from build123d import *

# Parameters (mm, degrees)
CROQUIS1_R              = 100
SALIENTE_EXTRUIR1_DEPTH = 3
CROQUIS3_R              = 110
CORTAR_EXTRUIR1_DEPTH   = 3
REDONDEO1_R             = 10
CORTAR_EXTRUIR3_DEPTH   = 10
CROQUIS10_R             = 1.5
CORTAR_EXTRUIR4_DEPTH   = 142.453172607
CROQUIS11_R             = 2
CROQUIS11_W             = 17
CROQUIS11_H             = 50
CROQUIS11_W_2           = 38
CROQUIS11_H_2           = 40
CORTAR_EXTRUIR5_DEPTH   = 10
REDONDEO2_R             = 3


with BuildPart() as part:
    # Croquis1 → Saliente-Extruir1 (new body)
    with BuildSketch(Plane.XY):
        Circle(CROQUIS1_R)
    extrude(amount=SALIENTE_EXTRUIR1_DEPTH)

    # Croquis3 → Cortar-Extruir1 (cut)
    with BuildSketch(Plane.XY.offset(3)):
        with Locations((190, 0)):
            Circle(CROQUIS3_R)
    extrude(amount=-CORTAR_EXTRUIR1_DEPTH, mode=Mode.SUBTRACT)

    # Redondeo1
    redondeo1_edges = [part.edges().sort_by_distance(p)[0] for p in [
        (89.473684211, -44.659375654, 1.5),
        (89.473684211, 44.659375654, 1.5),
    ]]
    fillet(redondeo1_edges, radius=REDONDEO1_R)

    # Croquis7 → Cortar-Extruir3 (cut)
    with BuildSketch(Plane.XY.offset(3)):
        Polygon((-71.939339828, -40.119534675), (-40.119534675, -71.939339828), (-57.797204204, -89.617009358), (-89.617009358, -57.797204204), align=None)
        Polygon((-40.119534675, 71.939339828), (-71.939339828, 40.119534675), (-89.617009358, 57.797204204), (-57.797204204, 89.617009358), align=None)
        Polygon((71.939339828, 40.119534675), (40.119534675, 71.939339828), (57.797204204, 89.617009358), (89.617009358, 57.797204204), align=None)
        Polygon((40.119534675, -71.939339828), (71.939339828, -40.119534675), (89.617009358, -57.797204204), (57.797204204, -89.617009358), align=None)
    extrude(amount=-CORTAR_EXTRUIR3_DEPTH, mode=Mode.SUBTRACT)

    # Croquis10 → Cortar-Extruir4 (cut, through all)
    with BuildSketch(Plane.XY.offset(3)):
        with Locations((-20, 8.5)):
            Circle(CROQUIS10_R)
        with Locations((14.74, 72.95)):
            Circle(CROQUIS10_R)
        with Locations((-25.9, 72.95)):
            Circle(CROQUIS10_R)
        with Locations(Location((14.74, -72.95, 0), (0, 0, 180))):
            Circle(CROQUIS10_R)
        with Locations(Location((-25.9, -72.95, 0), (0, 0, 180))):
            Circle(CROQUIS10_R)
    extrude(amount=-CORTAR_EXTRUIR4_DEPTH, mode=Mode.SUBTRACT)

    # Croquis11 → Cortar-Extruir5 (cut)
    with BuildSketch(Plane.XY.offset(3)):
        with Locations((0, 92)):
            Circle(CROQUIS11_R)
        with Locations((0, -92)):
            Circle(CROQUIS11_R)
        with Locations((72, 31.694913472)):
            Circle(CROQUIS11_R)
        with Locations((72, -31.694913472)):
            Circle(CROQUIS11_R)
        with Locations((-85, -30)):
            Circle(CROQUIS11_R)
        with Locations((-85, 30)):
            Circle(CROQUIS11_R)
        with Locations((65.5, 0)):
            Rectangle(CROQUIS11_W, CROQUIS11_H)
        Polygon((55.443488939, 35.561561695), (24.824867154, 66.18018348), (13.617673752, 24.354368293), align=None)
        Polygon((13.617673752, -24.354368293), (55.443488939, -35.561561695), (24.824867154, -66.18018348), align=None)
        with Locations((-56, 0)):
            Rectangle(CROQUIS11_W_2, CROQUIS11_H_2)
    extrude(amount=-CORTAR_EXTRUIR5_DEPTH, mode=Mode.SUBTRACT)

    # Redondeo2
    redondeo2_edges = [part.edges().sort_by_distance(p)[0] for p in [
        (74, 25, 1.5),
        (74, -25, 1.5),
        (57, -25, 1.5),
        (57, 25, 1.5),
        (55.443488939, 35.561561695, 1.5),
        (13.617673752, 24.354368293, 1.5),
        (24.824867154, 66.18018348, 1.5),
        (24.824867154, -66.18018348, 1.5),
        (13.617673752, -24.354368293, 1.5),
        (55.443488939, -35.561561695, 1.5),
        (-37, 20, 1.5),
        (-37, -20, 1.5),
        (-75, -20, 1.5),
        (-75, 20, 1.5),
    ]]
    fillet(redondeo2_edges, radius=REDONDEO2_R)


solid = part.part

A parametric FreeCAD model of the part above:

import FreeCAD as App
import Part
import Sketcher
Q = App.Units.Quantity


def edges_at(feature, points):
    """Names of the edges that pass closest to the given points."""
    edges = feature.Shape.Edges
    near = lambda p: min(range(len(edges)), key=lambda i: edges[i].distToShape(Part.Vertex(*p))[0])
    return sorted({f"Edge{near(p) + 1}" for p in points})

doc = App.newDocument("Part")
body = doc.addObject("PartDesign::Body", "Body")

sketch1 = doc.addObject("Sketcher::SketchObject", "Sketch")
body.addObject(sketch1)
sketch1.AttachmentSupport = (doc.XY_Plane, [""])
sketch1.MapMode = "FlatFace"
sketch1.addGeometry(Part.Circle(App.Vector(0, 0, 0), App.Vector(0, 0, 1), 100), False)
sketch1.addConstraint([
    Sketcher.Constraint("Coincident", 0, 3, -1, 1),
    Sketcher.Constraint("Diameter", 0, Q("200 mm")),
])
pad1 = doc.addObject("PartDesign::Pad", "Pad")
body.addObject(pad1)
pad1.Profile = sketch1
pad1.Length = 3

sketch2 = doc.addObject("Sketcher::SketchObject", "Sketch001")
body.addObject(sketch2)
sketch2.AttachmentSupport = (doc.XY_Plane, [""])
sketch2.MapMode = "FlatFace"
sketch2.AttachmentOffset = App.Placement(App.Vector(0, 0, 3), App.Rotation())
sketch2.addGeometry(Part.Circle(App.Vector(190, 0, 0), App.Vector(0, 0, 1), 110), False)
sketch2.addConstraint([
    Sketcher.Constraint("PointOnObject", 0, 3, -1),
    Sketcher.Constraint("Diameter", 0, Q("220 mm")),
    Sketcher.Constraint("DistanceX", -1, 1, 0, 3, Q("190 mm")),
])
pocket1 = doc.addObject("PartDesign::Pocket", "Pocket")
body.addObject(pocket1)
pocket1.Profile = sketch2
pocket1.Length = 3
doc.recompute()

fillet = doc.addObject("PartDesign::Fillet", "Fillet")
body.addObject(fillet)
fillet.Base = (pocket1, edges_at(pocket1, [(89.474, -44.659, 1.5), (89.474, 44.659, 1.5)]))
fillet.Radius = 10

sketch3 = doc.addObject("Sketcher::SketchObject", "Sketch002")
body.addObject(sketch3)
sketch3.AttachmentSupport = (doc.XY_Plane, [""])
sketch3.MapMode = "FlatFace"
sketch3.AttachmentOffset = App.Placement(App.Vector(0, 0, 3), App.Rotation())
sketch3.addGeometry([
    Part.LineSegment(App.Vector(-40.119535, -71.93934, 0), App.Vector(-71.93934, -40.119535, 0)),
    Part.LineSegment(App.Vector(-71.93934, -40.119535, 0), App.Vector(-89.617009, -57.797204, 0)),
    Part.LineSegment(App.Vector(-89.617009, -57.797204, 0), App.Vector(-57.797204, -89.617009, 0)),
    Part.LineSegment(App.Vector(-57.797204, -89.617009, 0), App.Vector(-40.119535, -71.93934, 0)),
    Part.LineSegment(App.Vector(-71.93934, 40.119535, 0), App.Vector(-40.119535, 71.93934, 0)),
    Part.LineSegment(App.Vector(-40.119535, 71.93934, 0), App.Vector(-57.797204, 89.617009, 0)),
    Part.LineSegment(App.Vector(-57.797204, 89.617009, 0), App.Vector(-89.617009, 57.797204, 0)),
    Part.LineSegment(App.Vector(-89.617009, 57.797204, 0), App.Vector(-71.93934, 40.119535, 0)),
    Part.LineSegment(App.Vector(40.119535, 71.93934, 0), App.Vector(71.93934, 40.119535, 0)),
    Part.LineSegment(App.Vector(71.93934, 40.119535, 0), App.Vector(89.617009, 57.797204, 0)),
    Part.LineSegment(App.Vector(89.617009, 57.797204, 0), App.Vector(57.797204, 89.617009, 0)),
    Part.LineSegment(App.Vector(57.797204, 89.617009, 0), App.Vector(40.119535, 71.93934, 0)),
    Part.LineSegment(App.Vector(71.93934, -40.119535, 0), App.Vector(40.119535, -71.93934, 0)),
    Part.LineSegment(App.Vector(40.119535, -71.93934, 0), App.Vector(57.797204, -89.617009, 0)),
    Part.LineSegment(App.Vector(57.797204, -89.617009, 0), App.Vector(89.617009, -57.797204, 0)),
    Part.LineSegment(App.Vector(89.617009, -57.797204, 0), App.Vector(71.93934, -40.119535, 0)),
], False)
sketch3.addConstraint([
    Sketcher.Constraint("Coincident", 0, 2, 1, 1),
    Sketcher.Constraint("Coincident", 1, 2, 2, 1),
    Sketcher.Constraint("Coincident", 2, 2, 3, 1),
    Sketcher.Constraint("Coincident", 3, 2, 0, 1),
    Sketcher.Constraint("Coincident", 4, 2, 5, 1),
    Sketcher.Constraint("Coincident", 5, 2, 6, 1),
    Sketcher.Constraint("Coincident", 6, 2, 7, 1),
    Sketcher.Constraint("Coincident", 7, 2, 4, 1),
    Sketcher.Constraint("Coincident", 8, 2, 9, 1),
    Sketcher.Constraint("Coincident", 9, 2, 10, 1),
    Sketcher.Constraint("Coincident", 10, 2, 11, 1),
    Sketcher.Constraint("Coincident", 11, 2, 8, 1),
    Sketcher.Constraint("Coincident", 12, 2, 13, 1),
    Sketcher.Constraint("Coincident", 13, 2, 14, 1),
    Sketcher.Constraint("Coincident", 14, 2, 15, 1),
    Sketcher.Constraint("Coincident", 15, 2, 12, 1),
    Sketcher.Constraint("Symmetric", 0, 2, 8, 2, -1, 1),
    Sketcher.Constraint("Symmetric", 1, 2, 9, 2, -1, 1),
    Sketcher.Constraint("Symmetric", 2, 2, 10, 2, -1, 1),
    Sketcher.Constraint("Symmetric", 3, 2, 11, 2, -1, 1),
    Sketcher.Constraint("Symmetric", 4, 2, 12, 2, -1, 1),
    Sketcher.Constraint("Symmetric", 5, 2, 13, 2, -1, 1),
    Sketcher.Constraint("Symmetric", 6, 2, 14, 2, -1, 1),
    Sketcher.Constraint("Symmetric", 7, 2, 15, 2, -1, 1),
    Sketcher.Constraint("Symmetric", 7, 2, 8, 2, -2),
    Sketcher.Constraint("Symmetric", 6, 2, 9, 2, -2),
    Sketcher.Constraint("Symmetric", 5, 2, 10, 2, -2),
    Sketcher.Constraint("Symmetric", 4, 2, 11, 2, -2),
    Sketcher.Constraint("Perpendicular", 0, 1),
    Sketcher.Constraint("Perpendicular", 1, 2),
    Sketcher.Constraint("Perpendicular", 2, 3),
    Sketcher.Constraint("Parallel", 3, 4),
    Sketcher.Constraint("Distance", 0, Q("45 mm")),
    Sketcher.Constraint("Distance", 1, Q("25 mm")),
    Sketcher.Constraint("DistanceX", 0, 2, -1, 1, Q("71.93934 mm")),
    Sketcher.Constraint("DistanceY", 2, 2, -1, 1, Q("89.617009 mm")),
])
pocket2 = doc.addObject("PartDesign::Pocket", "Pocket001")
body.addObject(pocket2)
pocket2.Profile = sketch3
pocket2.Length = 10

sketch4 = doc.addObject("Sketcher::SketchObject", "Sketch003")
body.addObject(sketch4)
sketch4.AttachmentSupport = (doc.XY_Plane, [""])
sketch4.MapMode = "FlatFace"
sketch4.AttachmentOffset = App.Placement(App.Vector(0, 0, 3), App.Rotation())
sketch4.addGeometry([
    Part.Circle(App.Vector(-20, 8.5, 0), App.Vector(0, 0, 1), 1.5),
    Part.Circle(App.Vector(14.74, 72.95, 0), App.Vector(0, 0, 1), 1.5),
    Part.Circle(App.Vector(-25.9, 72.95, 0), App.Vector(0, 0, 1), 1.5),
    Part.Circle(App.Vector(14.74, -72.95, 0), App.Vector(0, 0, 1), 1.5),
    Part.Circle(App.Vector(-25.9, -72.95, 0), App.Vector(0, 0, 1), 1.5),
], False)
sketch4.addConstraint([
    Sketcher.Constraint("Equal", 0, 1),
    Sketcher.Constraint("Equal", 1, 2),
    Sketcher.Constraint("Equal", 2, 3),
    Sketcher.Constraint("Equal", 3, 4),
    Sketcher.Constraint("Symmetric", 1, 3, 3, 3, -1),
    Sketcher.Constraint("Symmetric", 2, 3, 4, 3, -1),
    Sketcher.Constraint("Horizontal", 1, 3, 2, 3),
    Sketcher.Constraint("Diameter", 0, Q("3 mm")),
    Sketcher.Constraint("DistanceX", 0, 3, -1, 1, Q("20 mm")),
    Sketcher.Constraint("DistanceY", -1, 1, 0, 3, Q("8.5 mm")),
    Sketcher.Constraint("DistanceX", 2, 3, -1, 1, Q("25.9 mm")),
    Sketcher.Constraint("DistanceY", 3, 3, 1, 3, Q("145.9 mm")),
    Sketcher.Constraint("DistanceX", -1, 1, 1, 3, Q("14.74 mm")),
])
pocket3 = doc.addObject("PartDesign::Pocket", "Pocket002")
body.addObject(pocket3)
pocket3.Profile = sketch4
pocket3.Type = "ThroughAll"

sketch5 = doc.addObject("Sketcher::SketchObject", "Sketch004")
body.addObject(sketch5)
sketch5.AttachmentSupport = (doc.XY_Plane, [""])
sketch5.MapMode = "FlatFace"
sketch5.AttachmentOffset = App.Placement(App.Vector(0, 0, 3), App.Rotation())
sketch5.addGeometry([
    Part.Circle(App.Vector(0, 92, 0), App.Vector(0, 0, 1), 2),
    Part.Circle(App.Vector(0, -92, 0), App.Vector(0, 0, 1), 2),
    Part.Circle(App.Vector(72, 31.694913, 0), App.Vector(0, 0, 1), 2),
    Part.Circle(App.Vector(72, -31.694913, 0), App.Vector(0, 0, 1), 2),
    Part.Circle(App.Vector(-85, -30, 0), App.Vector(0, 0, 1), 2),
    Part.Circle(App.Vector(-85, 30, 0), App.Vector(0, 0, 1), 2),
    Part.LineSegment(App.Vector(57, 25, 0), App.Vector(57, -25, 0)),
    Part.LineSegment(App.Vector(57, -25, 0), App.Vector(74, -25, 0)),
    Part.LineSegment(App.Vector(74, -25, 0), App.Vector(74, 25, 0)),
    Part.LineSegment(App.Vector(74, 25, 0), App.Vector(57, 25, 0)),
    Part.LineSegment(App.Vector(55.443489, 35.561562, 0), App.Vector(24.824867, 66.180183, 0)),
    Part.LineSegment(App.Vector(24.824867, 66.180183, 0), App.Vector(13.617674, 24.354368, 0)),
    Part.LineSegment(App.Vector(13.617674, 24.354368, 0), App.Vector(55.443489, 35.561562, 0)),
    Part.LineSegment(App.Vector(55.443489, -35.561562, 0), App.Vector(13.617674, -24.354368, 0)),
    Part.LineSegment(App.Vector(13.617674, -24.354368, 0), App.Vector(24.824867, -66.180183, 0)),
    Part.LineSegment(App.Vector(24.824867, -66.180183, 0), App.Vector(55.443489, -35.561562, 0)),
    Part.LineSegment(App.Vector(-75, 20, 0), App.Vector(-75, -20, 0)),
    Part.LineSegment(App.Vector(-75, -20, 0), App.Vector(-37, -20, 0)),
    Part.LineSegment(App.Vector(-37, -20, 0), App.Vector(-37, 20, 0)),
    Part.LineSegment(App.Vector(-37, 20, 0), App.Vector(-75, 20, 0)),
], False)
sketch5.addConstraint([
    Sketcher.Constraint("Coincident", 6, 2, 7, 1),
    Sketcher.Constraint("Coincident", 7, 2, 8, 1),
    Sketcher.Constraint("Coincident", 8, 2, 9, 1),
    Sketcher.Constraint("Coincident", 9, 2, 6, 1),
    Sketcher.Constraint("Coincident", 10, 2, 11, 1),
    Sketcher.Constraint("Coincident", 11, 2, 12, 1),
    Sketcher.Constraint("Coincident", 12, 2, 10, 1),
    Sketcher.Constraint("Coincident", 13, 2, 14, 1),
    Sketcher.Constraint("Coincident", 14, 2, 15, 1),
    Sketcher.Constraint("Coincident", 15, 2, 13, 1),
    Sketcher.Constraint("Coincident", 16, 2, 17, 1),
    Sketcher.Constraint("Coincident", 17, 2, 18, 1),
    Sketcher.Constraint("Coincident", 18, 2, 19, 1),
    Sketcher.Constraint("Coincident", 19, 2, 16, 1),
    Sketcher.Constraint("Vertical", 6),
    Sketcher.Constraint("Horizontal", 7),
    Sketcher.Constraint("Vertical", 8),
    Sketcher.Constraint("Horizontal", 9),
    Sketcher.Constraint("Vertical", 16),
    Sketcher.Constraint("Horizontal", 17),
    Sketcher.Constraint("Vertical", 18),
    Sketcher.Constraint("Horizontal", 19),
    Sketcher.Constraint("Equal", 0, 1),
    Sketcher.Constraint("Equal", 1, 2),
    Sketcher.Constraint("Equal", 2, 3),
    Sketcher.Constraint("Equal", 3, 4),
    Sketcher.Constraint("Equal", 4, 5),
    Sketcher.Constraint("Symmetric", 0, 3, 1, 3, -1, 1),
    Sketcher.Constraint("Symmetric", 2, 3, 3, 3, -1),
    Sketcher.Constraint("Symmetric", 4, 3, 5, 3, -1),
    Sketcher.Constraint("Symmetric", 11, 2, 13, 2, -1),
    Sketcher.Constraint("Symmetric", 10, 2, 14, 2, -1),
    Sketcher.Constraint("Symmetric", 12, 2, 15, 2, -1),
    Sketcher.Constraint("PointOnObject", 0, 3, -2),
    Sketcher.Constraint("Perpendicular", 11, 13),
    Sketcher.Constraint("Perpendicular", 10, 15),
    Sketcher.Constraint("Equal", 10, 11),
    Sketcher.Constraint("Diameter", 0, Q("4 mm")),
    Sketcher.Constraint("DistanceX", 7, 1, 7, 2, Q("17 mm")),
    Sketcher.Constraint("DistanceX", 17, 1, 17, 2, Q("38 mm")),
    Sketcher.Constraint("DistanceY", 6, 2, 6, 1, Q("50 mm")),
    Sketcher.Constraint("DistanceY", 16, 2, 16, 1, Q("40 mm")),
    Sketcher.Constraint("DistanceY", -1, 1, 0, 3, Q("92 mm")),
    Sketcher.Constraint("DistanceX", -1, 1, 2, 3, Q("72 mm")),
    Sketcher.Constraint("DistanceX", 4, 3, -1, 1, Q("85 mm")),
    Sketcher.Constraint("DistanceY", 4, 3, -1, 1, Q("30 mm")),
    Sketcher.Constraint("DistanceX", -1, 1, 6, 2, Q("57 mm")),
    Sketcher.Constraint("DistanceY", 6, 2, -1, 1, Q("25 mm")),
    Sketcher.Constraint("DistanceX", 16, 2, -1, 1, Q("75 mm")),
    Sketcher.Constraint("DistanceY", 16, 2, -1, 1, Q("20 mm")),
    Sketcher.Constraint("Distance", 10, Q("43.30127 mm")),
    Sketcher.Constraint("DistanceY", -1, 1, 11, 2, Q("24.354368 mm")),
    Sketcher.Constraint("DistanceX", -1, 1, 12, 2, Q("55.443489 mm")),
    Sketcher.Constraint("DistanceY", 2, 3, 10, 2, Q("34.48527 mm")),
])
pocket4 = doc.addObject("PartDesign::Pocket", "Pocket003")
body.addObject(pocket4)
pocket4.Profile = sketch5
pocket4.Length = 10
doc.recompute()

fillet2 = doc.addObject("PartDesign::Fillet", "Fillet001")
body.addObject(fillet2)
fillet2.Base = (pocket4, edges_at(pocket4, [
    (74, 25, 1.5),
    (74, -25, 1.5),
    (57, -25, 1.5),
    (57, 25, 1.5),
    (55.443, 35.562, 1.5),
    (13.618, 24.354, 1.5),
    (24.825, 66.18, 1.5),
    (24.825, -66.18, 1.5),
    (13.618, -24.354, 1.5),
    (55.443, -35.562, 1.5),
    (-37, 20, 1.5),
    (-37, -20, 1.5),
    (-75, -20, 1.5),
    (-75, 20, 1.5),
]))
fillet2.Radius = 3

doc.recompute()
